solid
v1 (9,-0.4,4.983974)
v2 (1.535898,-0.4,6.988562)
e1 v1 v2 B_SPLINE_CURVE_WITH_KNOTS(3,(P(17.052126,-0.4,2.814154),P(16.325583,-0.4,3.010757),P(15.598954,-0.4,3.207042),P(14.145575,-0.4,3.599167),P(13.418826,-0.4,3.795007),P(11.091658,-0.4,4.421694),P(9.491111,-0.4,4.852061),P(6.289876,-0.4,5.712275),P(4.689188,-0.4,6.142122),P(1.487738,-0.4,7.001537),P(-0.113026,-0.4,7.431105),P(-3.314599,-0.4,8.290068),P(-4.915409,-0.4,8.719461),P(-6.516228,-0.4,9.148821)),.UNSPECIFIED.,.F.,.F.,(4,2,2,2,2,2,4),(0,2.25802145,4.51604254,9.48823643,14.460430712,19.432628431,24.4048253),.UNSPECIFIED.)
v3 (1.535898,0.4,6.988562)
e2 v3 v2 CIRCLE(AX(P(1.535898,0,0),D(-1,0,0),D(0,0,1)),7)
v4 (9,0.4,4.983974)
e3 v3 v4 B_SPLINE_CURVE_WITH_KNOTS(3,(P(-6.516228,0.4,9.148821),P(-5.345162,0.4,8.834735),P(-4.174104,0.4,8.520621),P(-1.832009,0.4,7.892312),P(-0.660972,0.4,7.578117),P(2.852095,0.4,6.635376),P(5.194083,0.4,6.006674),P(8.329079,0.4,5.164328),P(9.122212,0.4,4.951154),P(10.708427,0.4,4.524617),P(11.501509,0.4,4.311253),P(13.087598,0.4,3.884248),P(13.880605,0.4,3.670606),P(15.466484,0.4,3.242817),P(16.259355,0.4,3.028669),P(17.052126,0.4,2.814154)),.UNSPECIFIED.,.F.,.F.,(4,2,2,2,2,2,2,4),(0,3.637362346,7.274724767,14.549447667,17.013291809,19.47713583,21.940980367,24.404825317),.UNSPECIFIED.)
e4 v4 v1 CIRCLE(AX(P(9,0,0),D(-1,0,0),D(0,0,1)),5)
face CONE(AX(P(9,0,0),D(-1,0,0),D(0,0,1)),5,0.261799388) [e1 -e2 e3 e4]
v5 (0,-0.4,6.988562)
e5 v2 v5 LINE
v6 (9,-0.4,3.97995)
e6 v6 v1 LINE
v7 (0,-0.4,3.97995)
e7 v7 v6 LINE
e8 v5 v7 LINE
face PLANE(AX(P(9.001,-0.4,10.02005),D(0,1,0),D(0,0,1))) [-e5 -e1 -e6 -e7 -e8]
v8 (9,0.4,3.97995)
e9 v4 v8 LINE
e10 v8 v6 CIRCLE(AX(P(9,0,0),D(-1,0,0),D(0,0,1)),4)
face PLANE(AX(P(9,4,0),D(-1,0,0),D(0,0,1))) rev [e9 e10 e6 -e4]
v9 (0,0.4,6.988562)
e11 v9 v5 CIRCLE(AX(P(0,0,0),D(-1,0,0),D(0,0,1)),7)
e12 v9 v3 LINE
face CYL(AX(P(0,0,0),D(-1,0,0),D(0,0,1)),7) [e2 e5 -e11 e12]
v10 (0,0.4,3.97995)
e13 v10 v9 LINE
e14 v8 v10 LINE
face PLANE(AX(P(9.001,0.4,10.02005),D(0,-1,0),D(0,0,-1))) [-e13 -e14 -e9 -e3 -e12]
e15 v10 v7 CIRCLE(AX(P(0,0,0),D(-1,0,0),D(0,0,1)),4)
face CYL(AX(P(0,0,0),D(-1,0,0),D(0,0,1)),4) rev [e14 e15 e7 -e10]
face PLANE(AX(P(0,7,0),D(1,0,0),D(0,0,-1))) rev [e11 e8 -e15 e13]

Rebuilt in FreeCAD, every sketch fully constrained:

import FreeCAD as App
import Part
import Sketcher
Q = App.Units.Quantity


def add_polygon(sketch, points):
    """Adds a closed chain of lines whose ends are joined by coincident constraints."""
    first, n = sketch.GeometryCount, len(points)
    for a, b in zip(points, points[1:] + points[:1]):
        sketch.addGeometry(Part.LineSegment(App.Vector(*a, 0), App.Vector(*b, 0)), False)
    for i in range(n):
        sketch.addConstraint(Sketcher.Constraint("Coincident", first + i, 2, first + (i + 1) % n, 1))

doc = App.newDocument("Part")
params = doc.addObject("Spreadsheet::Sheet", "Params")
for row, (alias, value) in enumerate([
    ("sketch1_width", "9 mm"),
    ("sketch1_height", "1 mm"),
    ("sketch1_height2", "3 mm"),
    ("revolution_angle", "360 deg"),
    ("sketch2_width", "0.8 mm"),
], start=1):
    params.set(f"A{row}", alias)
    params.set(f"B{row}", "=" + value)
    params.setAlias(f"B{row}", alias)

body = doc.addObject("PartDesign::Body", "Body")

sketch1 = body.newObject("Sketcher::SketchObject", "Sketch")
sketch1.AttachmentSupport = (doc.getObject("XY_Plane"), [""])
sketch1.MapMode = "FlatFace"
add_polygon(sketch1, [(0, 4), (9, 4), (9, 5), (1.5, 7), (0, 7)])
sketch1.addConstraint([
    Sketcher.Constraint("Horizontal", 0),
    Sketcher.Constraint("Vertical", 1),
    Sketcher.Constraint("Horizontal", 3),
    Sketcher.Constraint("Vertical", 4),
    Sketcher.Constraint("PointOnObject", 3, 2, -2),
    Sketcher.Constraint("DistanceX", 0, 1, 0, 2, 9.0),
    Sketcher.Constraint("DistanceY", 1, 1, 1, 2, 1.0),
    Sketcher.Constraint("DistanceY", 4, 2, 4, 1, 3.0),
    Sketcher.Constraint("Angle", 2, Q("165 deg")),
    Sketcher.Constraint("DistanceY", -1, 1, 0, 2, 4.0),
])
sketch1.setExpression("Constraints[10]", "Params.sketch1_width")
sketch1.setExpression("Constraints[11]", "Params.sketch1_height")
sketch1.setExpression("Constraints[12]", "Params.sketch1_height2")
revolution = body.newObject("PartDesign::Revolution", "Revolution")
revolution.Profile = sketch1
revolution.ReferenceAxis = (sketch1, ["H_Axis"])
revolution.setExpression("Angle", "Params.revolution_angle")

sketch2 = body.newObject("Sketcher::SketchObject", "Sketch001")
sketch2.AttachmentSupport = (doc.getObject("YZ_Plane"), [""])
sketch2.MapMode = "FlatFace"
add_polygon(sketch2, [(0.4, 10), (-0.4, 10), (-0.4, 4), (0.4, 4)])
sketch2.addConstraint([
    Sketcher.Constraint("Horizontal", 0),
    Sketcher.Constraint("Vertical", 1),
    Sketcher.Constraint("Horizontal", 2),
    Sketcher.Constraint("Vertical", 3),
    Sketcher.Constraint("DistanceX", 0, 2, 0, 1, 0.8),
    Sketcher.Constraint("DistanceX", 0, 2, -1, 1, 0.4),
    Sketcher.Constraint("DistanceY", 1, 2, 1, 1, 6.040101),
    Sketcher.Constraint("DistanceY", -1, 1, 0, 2, 10.02005),
])
sketch2.setExpression("Constraints[8]", "Params.sketch2_width")
pocket1 = body.newObject("PartDesign::Pocket", "Pocket")
pocket1.Profile = sketch2
pocket1.Type = "UpToFirst"
pocket1.Reversed = True

doc.recompute()
